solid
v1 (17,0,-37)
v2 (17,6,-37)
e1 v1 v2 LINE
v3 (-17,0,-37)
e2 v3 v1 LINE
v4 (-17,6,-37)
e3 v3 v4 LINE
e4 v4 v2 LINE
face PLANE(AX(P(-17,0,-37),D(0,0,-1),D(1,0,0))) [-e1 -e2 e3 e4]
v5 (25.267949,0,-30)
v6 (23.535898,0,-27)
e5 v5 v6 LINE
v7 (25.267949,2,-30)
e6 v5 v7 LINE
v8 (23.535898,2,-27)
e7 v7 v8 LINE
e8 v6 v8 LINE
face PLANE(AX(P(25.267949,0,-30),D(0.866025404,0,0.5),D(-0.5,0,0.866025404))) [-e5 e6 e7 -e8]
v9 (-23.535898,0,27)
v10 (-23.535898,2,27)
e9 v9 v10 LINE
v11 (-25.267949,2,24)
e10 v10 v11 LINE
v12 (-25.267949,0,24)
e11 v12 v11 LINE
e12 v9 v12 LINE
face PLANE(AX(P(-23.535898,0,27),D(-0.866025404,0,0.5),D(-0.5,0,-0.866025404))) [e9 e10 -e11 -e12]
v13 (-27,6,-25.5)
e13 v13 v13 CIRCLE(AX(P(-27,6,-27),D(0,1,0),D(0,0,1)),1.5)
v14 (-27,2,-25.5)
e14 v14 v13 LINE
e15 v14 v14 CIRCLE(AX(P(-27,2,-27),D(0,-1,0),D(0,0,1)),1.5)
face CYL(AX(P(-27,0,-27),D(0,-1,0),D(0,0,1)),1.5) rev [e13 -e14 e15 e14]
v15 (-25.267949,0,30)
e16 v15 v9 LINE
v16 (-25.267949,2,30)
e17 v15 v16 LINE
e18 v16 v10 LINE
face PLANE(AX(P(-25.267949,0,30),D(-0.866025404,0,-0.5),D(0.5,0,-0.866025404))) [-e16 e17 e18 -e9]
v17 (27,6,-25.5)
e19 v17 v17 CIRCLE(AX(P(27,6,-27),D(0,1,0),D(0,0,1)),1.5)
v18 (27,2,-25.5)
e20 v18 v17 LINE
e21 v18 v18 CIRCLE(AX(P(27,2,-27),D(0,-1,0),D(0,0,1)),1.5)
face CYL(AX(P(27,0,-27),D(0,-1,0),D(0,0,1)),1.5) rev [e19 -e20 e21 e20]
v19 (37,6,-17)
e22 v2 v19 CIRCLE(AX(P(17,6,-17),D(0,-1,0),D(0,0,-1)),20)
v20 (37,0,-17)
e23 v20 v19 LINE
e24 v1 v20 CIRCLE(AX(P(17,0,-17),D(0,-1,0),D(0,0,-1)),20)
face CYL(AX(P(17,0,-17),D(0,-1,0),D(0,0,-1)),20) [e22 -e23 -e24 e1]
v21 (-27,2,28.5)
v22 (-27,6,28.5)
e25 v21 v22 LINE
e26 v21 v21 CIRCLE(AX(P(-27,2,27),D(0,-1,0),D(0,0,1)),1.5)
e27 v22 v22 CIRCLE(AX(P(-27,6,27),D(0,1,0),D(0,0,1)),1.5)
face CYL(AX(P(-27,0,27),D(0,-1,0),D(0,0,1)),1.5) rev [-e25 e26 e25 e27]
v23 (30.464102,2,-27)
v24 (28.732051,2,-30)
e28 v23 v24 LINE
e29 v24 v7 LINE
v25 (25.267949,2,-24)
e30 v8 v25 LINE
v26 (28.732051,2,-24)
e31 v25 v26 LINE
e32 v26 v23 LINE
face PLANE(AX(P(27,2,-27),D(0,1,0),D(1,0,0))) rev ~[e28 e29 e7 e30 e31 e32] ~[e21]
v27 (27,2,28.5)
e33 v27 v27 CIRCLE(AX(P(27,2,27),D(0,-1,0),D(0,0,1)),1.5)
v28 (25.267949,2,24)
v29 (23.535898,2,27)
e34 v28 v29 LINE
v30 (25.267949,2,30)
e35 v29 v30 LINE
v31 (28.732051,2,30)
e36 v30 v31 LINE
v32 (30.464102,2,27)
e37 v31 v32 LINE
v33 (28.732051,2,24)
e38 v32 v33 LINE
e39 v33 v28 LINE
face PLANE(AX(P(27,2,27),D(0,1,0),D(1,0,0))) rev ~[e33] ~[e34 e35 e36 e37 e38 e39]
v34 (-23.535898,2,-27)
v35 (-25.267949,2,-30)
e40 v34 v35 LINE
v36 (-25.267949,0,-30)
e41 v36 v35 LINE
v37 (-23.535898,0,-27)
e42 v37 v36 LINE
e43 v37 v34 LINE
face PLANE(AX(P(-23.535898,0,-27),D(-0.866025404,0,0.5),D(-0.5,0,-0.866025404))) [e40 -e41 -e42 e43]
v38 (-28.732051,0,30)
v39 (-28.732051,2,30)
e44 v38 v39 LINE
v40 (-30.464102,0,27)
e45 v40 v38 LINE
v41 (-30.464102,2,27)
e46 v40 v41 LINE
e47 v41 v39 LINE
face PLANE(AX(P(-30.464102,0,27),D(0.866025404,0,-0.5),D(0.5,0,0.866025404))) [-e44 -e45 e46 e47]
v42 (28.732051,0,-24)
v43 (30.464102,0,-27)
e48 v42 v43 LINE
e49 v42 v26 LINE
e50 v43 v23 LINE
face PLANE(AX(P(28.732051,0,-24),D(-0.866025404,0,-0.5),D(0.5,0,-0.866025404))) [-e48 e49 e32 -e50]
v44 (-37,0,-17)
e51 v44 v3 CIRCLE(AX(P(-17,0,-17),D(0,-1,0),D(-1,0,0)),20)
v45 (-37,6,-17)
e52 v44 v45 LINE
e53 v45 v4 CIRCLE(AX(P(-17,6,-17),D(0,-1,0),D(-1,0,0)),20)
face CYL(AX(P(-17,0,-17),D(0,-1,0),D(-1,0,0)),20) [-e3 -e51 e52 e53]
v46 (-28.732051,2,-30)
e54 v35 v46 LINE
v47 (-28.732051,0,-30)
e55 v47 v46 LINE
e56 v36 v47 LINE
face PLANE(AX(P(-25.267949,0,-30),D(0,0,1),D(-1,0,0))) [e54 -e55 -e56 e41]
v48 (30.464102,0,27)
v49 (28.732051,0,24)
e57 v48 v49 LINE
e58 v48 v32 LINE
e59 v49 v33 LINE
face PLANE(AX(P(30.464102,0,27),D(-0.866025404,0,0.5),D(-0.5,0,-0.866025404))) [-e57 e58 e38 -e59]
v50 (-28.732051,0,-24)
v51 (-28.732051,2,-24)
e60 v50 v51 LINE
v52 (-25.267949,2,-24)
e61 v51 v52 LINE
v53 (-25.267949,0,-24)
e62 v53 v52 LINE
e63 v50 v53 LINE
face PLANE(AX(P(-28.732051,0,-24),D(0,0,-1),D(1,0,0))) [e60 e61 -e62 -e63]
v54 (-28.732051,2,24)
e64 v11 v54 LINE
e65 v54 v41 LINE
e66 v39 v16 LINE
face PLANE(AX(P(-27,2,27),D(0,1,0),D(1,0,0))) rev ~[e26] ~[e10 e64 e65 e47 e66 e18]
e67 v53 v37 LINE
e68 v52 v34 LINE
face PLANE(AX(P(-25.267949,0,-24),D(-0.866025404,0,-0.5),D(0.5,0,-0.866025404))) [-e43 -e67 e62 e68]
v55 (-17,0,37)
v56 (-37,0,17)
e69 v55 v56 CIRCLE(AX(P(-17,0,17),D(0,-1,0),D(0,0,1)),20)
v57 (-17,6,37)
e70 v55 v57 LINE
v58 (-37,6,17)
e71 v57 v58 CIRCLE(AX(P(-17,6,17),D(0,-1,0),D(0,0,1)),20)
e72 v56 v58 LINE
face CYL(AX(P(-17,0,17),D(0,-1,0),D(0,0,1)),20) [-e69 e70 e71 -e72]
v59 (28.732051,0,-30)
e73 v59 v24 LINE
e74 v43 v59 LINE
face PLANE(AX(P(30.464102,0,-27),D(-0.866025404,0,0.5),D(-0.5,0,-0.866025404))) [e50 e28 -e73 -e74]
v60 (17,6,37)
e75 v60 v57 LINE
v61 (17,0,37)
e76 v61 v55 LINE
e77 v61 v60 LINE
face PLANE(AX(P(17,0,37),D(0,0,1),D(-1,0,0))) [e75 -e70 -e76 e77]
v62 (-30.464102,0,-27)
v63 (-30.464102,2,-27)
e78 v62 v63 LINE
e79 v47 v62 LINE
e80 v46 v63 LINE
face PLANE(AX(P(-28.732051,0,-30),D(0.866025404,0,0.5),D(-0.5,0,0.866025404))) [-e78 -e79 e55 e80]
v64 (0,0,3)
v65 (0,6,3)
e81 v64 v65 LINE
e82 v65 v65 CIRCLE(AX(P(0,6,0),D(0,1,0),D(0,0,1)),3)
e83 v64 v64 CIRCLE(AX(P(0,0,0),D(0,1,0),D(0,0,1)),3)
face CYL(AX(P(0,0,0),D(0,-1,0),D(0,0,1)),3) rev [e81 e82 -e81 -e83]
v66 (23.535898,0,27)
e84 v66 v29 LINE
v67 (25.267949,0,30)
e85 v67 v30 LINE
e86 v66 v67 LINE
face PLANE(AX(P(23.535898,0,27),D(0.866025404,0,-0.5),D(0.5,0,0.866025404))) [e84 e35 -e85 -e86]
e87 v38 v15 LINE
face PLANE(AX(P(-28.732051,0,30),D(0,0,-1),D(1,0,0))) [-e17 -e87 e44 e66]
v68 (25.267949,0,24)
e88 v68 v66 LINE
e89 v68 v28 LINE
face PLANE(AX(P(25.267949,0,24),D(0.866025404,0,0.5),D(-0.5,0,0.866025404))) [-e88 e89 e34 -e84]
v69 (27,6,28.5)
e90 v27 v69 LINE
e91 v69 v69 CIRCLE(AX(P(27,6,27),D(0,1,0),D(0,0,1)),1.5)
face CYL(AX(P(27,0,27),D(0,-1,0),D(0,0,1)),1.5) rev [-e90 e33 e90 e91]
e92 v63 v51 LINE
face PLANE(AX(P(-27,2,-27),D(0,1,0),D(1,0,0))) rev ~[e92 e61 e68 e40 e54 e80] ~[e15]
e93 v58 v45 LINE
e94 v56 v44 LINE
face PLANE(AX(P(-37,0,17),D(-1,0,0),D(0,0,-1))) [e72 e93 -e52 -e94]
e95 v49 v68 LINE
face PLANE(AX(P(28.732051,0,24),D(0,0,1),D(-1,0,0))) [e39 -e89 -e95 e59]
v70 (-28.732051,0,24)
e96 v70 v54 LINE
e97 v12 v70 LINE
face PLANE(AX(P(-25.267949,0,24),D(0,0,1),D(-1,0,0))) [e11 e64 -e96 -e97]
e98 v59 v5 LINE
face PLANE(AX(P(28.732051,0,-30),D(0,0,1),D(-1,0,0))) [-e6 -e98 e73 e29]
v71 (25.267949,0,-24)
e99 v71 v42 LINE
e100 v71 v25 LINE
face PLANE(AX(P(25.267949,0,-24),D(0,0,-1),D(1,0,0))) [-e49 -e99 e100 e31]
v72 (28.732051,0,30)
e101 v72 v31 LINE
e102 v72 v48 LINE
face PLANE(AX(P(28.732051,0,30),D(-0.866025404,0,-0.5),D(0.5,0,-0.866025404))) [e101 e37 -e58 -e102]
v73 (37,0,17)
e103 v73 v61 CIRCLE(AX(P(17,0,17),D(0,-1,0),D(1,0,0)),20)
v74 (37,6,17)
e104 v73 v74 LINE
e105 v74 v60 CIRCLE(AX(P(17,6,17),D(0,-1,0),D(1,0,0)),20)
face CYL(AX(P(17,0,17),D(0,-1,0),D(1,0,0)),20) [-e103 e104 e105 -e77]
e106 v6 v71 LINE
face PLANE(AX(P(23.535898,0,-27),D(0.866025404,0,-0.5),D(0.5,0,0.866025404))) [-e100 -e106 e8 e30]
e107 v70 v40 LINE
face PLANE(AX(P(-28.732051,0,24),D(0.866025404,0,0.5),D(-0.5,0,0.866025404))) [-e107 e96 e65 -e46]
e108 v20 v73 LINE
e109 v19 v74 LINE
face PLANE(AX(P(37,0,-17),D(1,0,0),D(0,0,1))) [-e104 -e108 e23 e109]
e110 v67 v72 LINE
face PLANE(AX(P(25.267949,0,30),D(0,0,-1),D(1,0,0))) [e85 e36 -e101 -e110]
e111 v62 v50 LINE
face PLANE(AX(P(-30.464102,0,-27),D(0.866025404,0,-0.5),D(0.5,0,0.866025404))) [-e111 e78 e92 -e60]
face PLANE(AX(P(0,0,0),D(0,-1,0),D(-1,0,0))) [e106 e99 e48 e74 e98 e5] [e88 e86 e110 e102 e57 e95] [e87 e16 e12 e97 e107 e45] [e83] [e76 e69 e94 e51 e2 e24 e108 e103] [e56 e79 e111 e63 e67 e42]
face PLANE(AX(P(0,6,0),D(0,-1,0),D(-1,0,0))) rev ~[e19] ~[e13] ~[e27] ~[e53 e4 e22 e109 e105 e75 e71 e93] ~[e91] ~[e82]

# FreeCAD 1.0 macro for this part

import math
import FreeCAD as App
import Part
import Sketcher
from FreeCAD import Vector
Q = App.Units.Quantity


def add_polygon(sketch, points):
    """Adds a closed chain of lines whose ends are joined by coincident constraints."""
    first, n = sketch.GeometryCount, len(points)
    for a, b in zip(points, points[1:] + points[:1]):
        sketch.addGeometry(Part.LineSegment(App.Vector(*a, 0), App.Vector(*b, 0)), False)
    for i in range(n):
        sketch.addConstraint(Sketcher.Constraint("Coincident", first + i, 2, first + (i + 1) % n, 1))

doc = App.newDocument("Part")
body = doc.addObject("PartDesign::Body", "Body")

sketch1 = body.newObject("Sketcher::SketchObject", "Sketch")
sketch1.AttachmentSupport = (doc.getObject("XZ_Plane"), [""])
sketch1.MapMode = "FlatFace"
sketch1.addGeometry(Part.LineSegment(Vector(-17, 37, 0), Vector(17, 37, 0)), False)
sketch1.addGeometry(Part.ArcOfCircle(Part.Circle(Vector(17, 17, 0), Vector(0, 0, 1), 20), math.radians(0), math.radians(90)), False)
sketch1.addGeometry(Part.LineSegment(Vector(37, 17, 0), Vector(37, -17, 0)), False)
sketch1.addGeometry(Part.ArcOfCircle(Part.Circle(Vector(17, -17, 0), Vector(0, 0, 1), 20), math.radians(-90), math.radians(0)), False)
sketch1.addGeometry(Part.LineSegment(Vector(17, -37, 0), Vector(-17, -37, 0)), False)
sketch1.addGeometry(Part.ArcOfCircle(Part.Circle(Vector(-17, -17, 0), Vector(0, 0, 1), 20), math.radians(180), math.radians(270)), False)
sketch1.addGeometry(Part.LineSegment(Vector(-37, -17, 0), Vector(-37, 17, 0)), False)
sketch1.addGeometry(Part.ArcOfCircle(Part.Circle(Vector(-17, 17, 0), Vector(0, 0, 1), 20), math.radians(90), math.radians(180)), False)
sketch1.addConstraint(Sketcher.Constraint("Tangent", 0, 2, 1, 2))
sketch1.addConstraint(Sketcher.Constraint("Tangent", 1, 1, 2, 1))
sketch1.addConstraint(Sketcher.Constraint("Tangent", 2, 2, 3, 2))
sketch1.addConstraint(Sketcher.Constraint("Tangent", 3, 1, 4, 1))
sketch1.addConstraint(Sketcher.Constraint("Tangent", 4, 2, 5, 2))
sketch1.addConstraint(Sketcher.Constraint("Tangent", 5, 1, 6, 1))
sketch1.addConstraint(Sketcher.Constraint("Tangent", 6, 2, 7, 2))
sketch1.addConstraint(Sketcher.Constraint("Tangent", 7, 1, 0, 1))
sketch1.addConstraint(Sketcher.Constraint("Horizontal", 0))
sketch1.addConstraint(Sketcher.Constraint("Vertical", 2))
sketch1.addConstraint(Sketcher.Constraint("Horizontal", 4))
sketch1.addConstraint(Sketcher.Constraint("Vertical", 6))
sketch1.addConstraint(Sketcher.Constraint("Equal", 1, 3))
sketch1.addConstraint(Sketcher.Constraint("Equal", 3, 5))
sketch1.addConstraint(Sketcher.Constraint("Equal", 5, 7))
sketch1.addConstraint(Sketcher.Constraint("Symmetric", 1, 3, 5, 3, -1, 1))
sketch1.addConstraint(Sketcher.Constraint("Equal", 4, 2))
sketch1.addConstraint(Sketcher.Constraint("Radius", 1, 20.0))
sketch1.addConstraint(Sketcher.Constraint("DistanceX", 0, 1, 0, 2, 34.0))
pad1 = body.newObject("PartDesign::Pad", "Pad")
pad1.Profile = sketch1
pad1.Length = 6
pad1.Reversed = True

sketch2 = body.newObject("Sketcher::SketchObject", "Sketch001")
sketch2.AttachmentSupport = (doc.getObject("XZ_Plane"), [""])
sketch2.MapMode = "FlatFace"
sketch2.addGeometry(Part.Circle(Vector(-27, -27, 0), Vector(0, 0, 1), 1.5), False)
sketch2.addGeometry(Part.Circle(Vector(27, -27, 0), Vector(0, 0, 1), 1.5), False)
sketch2.addGeometry(Part.Circle(Vector(27, 27, 0), Vector(0, 0, 1), 1.5), False)
sketch2.addGeometry(Part.Circle(Vector(-27, 27, 0), Vector(0, 0, 1), 1.5), False)
sketch2.addGeometry(Part.Circle(Vector(0, 0, 0), Vector(0, 0, 1), 3), False)
sketch2.addConstraint(Sketcher.Constraint("Coincident", 4, 3, -1, 1))
sketch2.addConstraint(Sketcher.Constraint("Equal", 0, 1))
sketch2.addConstraint(Sketcher.Constraint("Equal", 1, 2))
sketch2.addConstraint(Sketcher.Constraint("Equal", 2, 3))
sketch2.addConstraint(Sketcher.Constraint("Symmetric", 0, 3, 2, 3, -1, 1))
sketch2.addConstraint(Sketcher.Constraint("Symmetric", 1, 3, 3, 3, -1, 1))
sketch2.addConstraint(Sketcher.Constraint("Symmetric", 0, 3, 1, 3, -2))
sketch2.addConstraint(Sketcher.Constraint("Diameter", 0, 3.0))
sketch2.addConstraint(Sketcher.Constraint("Diameter", 4, 6.0))
sketch2.addConstraint(Sketcher.Constraint("DistanceX", 0, 3, -1, 1, 27.0))
sketch2.addConstraint(Sketcher.Constraint("DistanceY", 0, 3, -1, 1, 27.0))
pocket1 = body.newObject("PartDesign::Pocket", "Pocket")
pocket1.Profile = sketch2
pocket1.Length = 6

sketch3 = body.newObject("Sketcher::SketchObject", "Sketch002")
sketch3.AttachmentSupport = (doc.getObject("XZ_Plane"), [""])
sketch3.MapMode = "FlatFace"
add_polygon(sketch3, [(-28.7, -30), (-30.5, -27), (-28.7, -24), (-25.3, -24), (-23.5, -27), (-25.3, -30)])
add_polygon(sketch3, [(25.3, -30), (23.5, -27), (25.3, -24), (28.7, -24), (30.5, -27), (28.7, -30)])
add_polygon(sketch3, [(25.3, 24), (23.5, 27), (25.3, 30), (28.7, 30), (30.5, 27), (28.7, 24)])
add_polygon(sketch3, [(-28.7, 24), (-30.5, 27), (-28.7, 30), (-25.3, 30), (-23.5, 27), (-25.3, 24)])
sketch3.addConstraint(Sketcher.Constraint("Horizontal", 2))
sketch3.addConstraint(Sketcher.Constraint("Horizontal", 5))
sketch3.addConstraint(Sketcher.Constraint("Horizontal", 8))
sketch3.addConstraint(Sketcher.Constraint("Horizontal", 11))
sketch3.addConstraint(Sketcher.Constraint("Horizontal", 14))
sketch3.addConstraint(Sketcher.Constraint("Horizontal", 17))
sketch3.addConstraint(Sketcher.Constraint("Horizontal", 20))
sketch3.addConstraint(Sketcher.Constraint("Horizontal", 23))
sketch3.addConstraint(Sketcher.Constraint("Symmetric", 3, 2, 12, 2, -1, 1))
sketch3.addConstraint(Sketcher.Constraint("Symmetric", 4, 2, 13, 2, -1, 1))
sketch3.addConstraint(Sketcher.Constraint("Symmetric", 0, 2, 15, 2, -1, 1))
sketch3.addConstraint(Sketcher.Constraint("Symmetric", 1, 2, 16, 2, -1, 1))
sketch3.addConstraint(Sketcher.Constraint("Symmetric", 9, 2, 18, 2, -1, 1))
sketch3.addConstraint(Sketcher.Constraint("Symmetric", 10, 2, 19, 2, -1, 1))
sketch3.addConstraint(Sketcher.Constraint("Symmetric", 6, 2, 21, 2, -1, 1))
sketch3.addConstraint(Sketcher.Constraint("Symmetric", 7, 2, 22, 2, -1, 1))
sketch3.addConstraint(Sketcher.Constraint("Symmetric", 3, 2, 6, 2, -2))
sketch3.addConstraint(Sketcher.Constraint("Symmetric", 2, 2, 7, 2, -2))
sketch3.addConstraint(Sketcher.Constraint("Symmetric", 0, 2, 9, 2, -2))
sketch3.addConstraint(Sketcher.Constraint("Symmetric", 5, 2, 10, 2, -2))
sketch3.addConstraint(Sketcher.Constraint("Parallel", 0, 3))
sketch3.addConstraint(Sketcher.Constraint("Parallel", 1, 4))
sketch3.addConstraint(Sketcher.Constraint("Parallel", 3, 6))
sketch3.addConstraint(Sketcher.Constraint("Parallel", 4, 7))
sketch3.addConstraint(Sketcher.Constraint("Parallel", 6, 9))
sketch3.addConstraint(Sketcher.Constraint("Parallel", 9, 12))
sketch3.addConstraint(Sketcher.Constraint("Parallel", 12, 15))
sketch3.addConstraint(Sketcher.Constraint("Parallel", 15, 18))
sketch3.addConstraint(Sketcher.Constraint("Parallel", 18, 21))
sketch3.addConstraint(Sketcher.Constraint("Horizontal", 0, 2, 3, 2))
sketch3.addConstraint(Sketcher.Constraint("Vertical", 2, 2, 4, 2))
sketch3.addConstraint(Sketcher.Constraint("Angle", 0, Q("120 deg")))
sketch3.addConstraint(Sketcher.Constraint("DistanceY", 0, 2, -1, 1, 27.0))
sketch3.addConstraint(Sketcher.Constraint("DistanceY", 1, 2, -1, 1, 24.0))
sketch3.addConstraint(Sketcher.Constraint("DistanceX", 1, 2, 7, 2, 54.0))
sketch3.addConstraint(Sketcher.Constraint("DistanceX", 2, 1, 2, 2, 3.464102))
pocket2 = body.newObject("PartDesign::Pocket", "Pocket001")
pocket2.Profile = sketch3
pocket2.Length = 2

doc.recompute()
